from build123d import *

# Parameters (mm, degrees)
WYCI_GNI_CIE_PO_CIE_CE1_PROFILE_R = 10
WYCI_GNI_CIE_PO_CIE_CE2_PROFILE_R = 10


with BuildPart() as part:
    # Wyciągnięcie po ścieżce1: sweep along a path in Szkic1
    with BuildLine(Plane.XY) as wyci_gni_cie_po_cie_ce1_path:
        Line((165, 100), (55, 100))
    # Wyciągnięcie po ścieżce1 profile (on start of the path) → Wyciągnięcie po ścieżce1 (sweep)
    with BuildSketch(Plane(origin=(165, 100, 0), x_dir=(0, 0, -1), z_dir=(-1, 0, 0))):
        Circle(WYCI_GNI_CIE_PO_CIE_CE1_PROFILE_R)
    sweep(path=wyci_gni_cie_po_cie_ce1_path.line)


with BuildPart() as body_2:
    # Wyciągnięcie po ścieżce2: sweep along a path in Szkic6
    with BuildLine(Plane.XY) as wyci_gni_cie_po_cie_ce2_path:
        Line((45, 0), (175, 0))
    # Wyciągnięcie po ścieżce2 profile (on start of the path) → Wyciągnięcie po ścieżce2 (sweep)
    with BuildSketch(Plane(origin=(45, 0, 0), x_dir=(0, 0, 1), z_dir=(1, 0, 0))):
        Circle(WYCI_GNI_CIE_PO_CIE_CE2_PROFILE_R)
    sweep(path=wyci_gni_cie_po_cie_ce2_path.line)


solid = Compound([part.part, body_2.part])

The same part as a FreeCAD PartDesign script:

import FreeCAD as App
import Part
import Sketcher

V = App.Vector
Q = App.Units.Quantity

doc = App.newDocument("Part")
body = doc.addObject("PartDesign::Body", "Body")

# Sketch on YZ plane
sketch1 = doc.addObject("Sketcher::SketchObject", "Sketch")
body.addObject(sketch1)
sketch1.AttachmentSupport = (doc.YZ_Plane, [""])
sketch1.MapMode = "FlatFace"
sketch1.AttachmentOffset = App.Placement(V(0, 0, 165), App.Rotation())
sketch1.addGeometry(Part.Circle(V(100, 0, 0), V(0, 0, 1), 10), False)
sketch1.addConstraint([
    Sketcher.Constraint("PointOnObject", 0, 3, -1),
    Sketcher.Constraint("Diameter", 0, Q("20 mm")),
    Sketcher.Constraint("DistanceX", -1, 1, 0, 3, Q("100 mm")),
])

# Sketch on XY plane
sketch2 = doc.addObject("Sketcher::SketchObject", "Sketch001")
body.addObject(sketch2)
sketch2.AttachmentSupport = (doc.XY_Plane, [""])
sketch2.MapMode = "FlatFace"
sketch2.addGeometry(Part.LineSegment(V(165, 100, 0), V(55, 100, 0)), False)
sketch2.addConstraint([
    Sketcher.Constraint("Horizontal", 0),
    Sketcher.Constraint("DistanceX", 0, 2, 0, 1, Q("110 mm")),
    Sketcher.Constraint("DistanceX", -1, 1, 0, 1, Q("165 mm")),
    Sketcher.Constraint("DistanceY", -1, 1, 0, 1, Q("100 mm")),
])
doc.recompute()

additivepipe = doc.addObject("PartDesign::AdditivePipe", "AdditivePipe")
body.addObject(additivepipe)
additivepipe.Profile = sketch1
additivepipe.Spine = (sketch2, ["Edge1"])
body2 = doc.addObject("PartDesign::Body", "Body001")

# Sketch on YZ plane
sketch3 = doc.addObject("Sketcher::SketchObject", "Sketch002")
body2.addObject(sketch3)
sketch3.AttachmentSupport = (doc.getObject("YZ_Plane001"), [""])
sketch3.MapMode = "FlatFace"
sketch3.AttachmentOffset = App.Placement(V(0, 0, 45), App.Rotation())
sketch3.addGeometry(Part.Circle(V(0, 0, 0), V(0, 0, 1), 10), False)
sketch3.addConstraint([
    Sketcher.Constraint("Coincident", 0, 3, -1, 1),
    Sketcher.Constraint("Diameter", 0, Q("20 mm")),
])

# Sketch on XY plane
sketch4 = doc.addObject("Sketcher::SketchObject", "Sketch003")
body2.addObject(sketch4)
sketch4.AttachmentSupport = (doc.getObject("XY_Plane001"), [""])
sketch4.MapMode = "FlatFace"
sketch4.addGeometry(Part.LineSegment(V(45, 0, 0), V(175, 0, 0)), False)
sketch4.addConstraint([
    Sketcher.Constraint("Horizontal", 0),
    Sketcher.Constraint("PointOnObject", 0, 1, -1),
    Sketcher.Constraint("DistanceX", 0, 1, 0, 2, Q("130 mm")),
    Sketcher.Constraint("DistanceX", -1, 1, 0, 1, Q("45 mm")),
])
doc.recompute()

additivepipe2 = doc.addObject("PartDesign::AdditivePipe", "AdditivePipe001")
body2.addObject(additivepipe2)
additivepipe2.Profile = sketch3
additivepipe2.Spine = (sketch4, ["Edge1"])

doc.recompute()
